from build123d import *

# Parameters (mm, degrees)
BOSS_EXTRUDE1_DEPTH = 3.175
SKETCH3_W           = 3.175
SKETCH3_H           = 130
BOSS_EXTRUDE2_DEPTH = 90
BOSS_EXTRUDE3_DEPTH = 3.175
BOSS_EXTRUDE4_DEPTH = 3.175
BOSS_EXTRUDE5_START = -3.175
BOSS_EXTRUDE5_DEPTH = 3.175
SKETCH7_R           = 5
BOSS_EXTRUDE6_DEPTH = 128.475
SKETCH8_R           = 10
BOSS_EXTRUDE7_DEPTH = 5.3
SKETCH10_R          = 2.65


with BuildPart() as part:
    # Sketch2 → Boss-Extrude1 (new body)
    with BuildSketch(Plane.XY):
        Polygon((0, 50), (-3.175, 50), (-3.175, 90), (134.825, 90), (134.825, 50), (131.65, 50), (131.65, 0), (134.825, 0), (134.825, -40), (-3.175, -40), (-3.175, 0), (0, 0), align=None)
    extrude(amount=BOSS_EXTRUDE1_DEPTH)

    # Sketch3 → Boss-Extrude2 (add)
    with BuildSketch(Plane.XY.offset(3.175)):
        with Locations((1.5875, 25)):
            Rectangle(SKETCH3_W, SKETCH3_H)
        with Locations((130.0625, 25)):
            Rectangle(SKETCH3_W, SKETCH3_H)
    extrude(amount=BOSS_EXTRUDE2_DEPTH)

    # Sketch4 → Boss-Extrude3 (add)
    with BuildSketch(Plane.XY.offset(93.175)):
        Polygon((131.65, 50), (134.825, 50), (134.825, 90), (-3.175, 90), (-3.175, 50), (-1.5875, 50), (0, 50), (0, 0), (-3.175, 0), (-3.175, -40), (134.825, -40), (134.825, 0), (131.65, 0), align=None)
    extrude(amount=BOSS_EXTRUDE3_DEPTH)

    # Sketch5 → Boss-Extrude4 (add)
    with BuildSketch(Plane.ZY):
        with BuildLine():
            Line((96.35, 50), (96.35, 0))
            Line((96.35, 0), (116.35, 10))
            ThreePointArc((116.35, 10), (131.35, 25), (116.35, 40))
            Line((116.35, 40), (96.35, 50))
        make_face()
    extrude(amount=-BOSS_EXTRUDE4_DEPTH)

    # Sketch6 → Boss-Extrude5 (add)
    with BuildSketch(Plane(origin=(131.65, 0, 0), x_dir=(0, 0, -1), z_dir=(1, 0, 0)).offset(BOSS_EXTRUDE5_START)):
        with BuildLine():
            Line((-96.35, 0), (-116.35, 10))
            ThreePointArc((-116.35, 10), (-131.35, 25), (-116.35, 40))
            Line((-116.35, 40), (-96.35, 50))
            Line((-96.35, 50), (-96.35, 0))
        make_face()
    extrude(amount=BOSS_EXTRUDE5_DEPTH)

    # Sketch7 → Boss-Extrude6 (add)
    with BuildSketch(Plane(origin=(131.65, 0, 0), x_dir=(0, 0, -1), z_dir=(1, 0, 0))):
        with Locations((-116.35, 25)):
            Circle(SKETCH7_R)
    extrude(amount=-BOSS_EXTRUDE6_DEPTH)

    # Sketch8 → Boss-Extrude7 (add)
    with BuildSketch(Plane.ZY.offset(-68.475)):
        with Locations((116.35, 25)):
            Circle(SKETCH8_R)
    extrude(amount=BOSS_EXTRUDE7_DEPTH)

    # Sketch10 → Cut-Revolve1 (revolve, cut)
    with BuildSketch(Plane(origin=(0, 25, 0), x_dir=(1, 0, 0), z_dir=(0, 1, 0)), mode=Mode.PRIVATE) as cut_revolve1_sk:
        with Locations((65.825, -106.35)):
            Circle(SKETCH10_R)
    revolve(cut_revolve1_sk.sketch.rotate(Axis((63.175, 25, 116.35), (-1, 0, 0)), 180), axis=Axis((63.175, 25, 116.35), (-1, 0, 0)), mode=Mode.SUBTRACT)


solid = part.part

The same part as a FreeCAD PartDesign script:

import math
import FreeCAD as App
import Part
import Sketcher
from FreeCAD import Vector

doc = App.newDocument("Part")
body = doc.addObject("PartDesign::Body", "Body")

sketch1 = doc.addObject("Sketcher::SketchObject", "Sketch")
body.addObject(sketch1)
sketch1.AttachmentSupport = (doc.XY_Plane, [""])
sketch1.MapMode = "FlatFace"
sketch1.addGeometry(Part.LineSegment(Vector(-3.2, 50, 0), Vector(0, 50, 0)), False)
sketch1.addGeometry(Part.LineSegment(Vector(0, 50, 0), Vector(0, 0, 0)), False)
sketch1.addGeometry(Part.LineSegment(Vector(0, 0, 0), Vector(-3.2, 0, 0)), False)
sketch1.addGeometry(Part.LineSegment(Vector(-3.2, 0, 0), Vector(-3.2, -40, 0)), False)
sketch1.addGeometry(Part.LineSegment(Vector(-3.2, -40, 0), Vector(134.8, -40, 0)), False)
sketch1.addGeometry(Part.LineSegment(Vector(134.8, -40, 0), Vector(134.8, 0, 0)), False)
sketch1.addGeometry(Part.LineSegment(Vector(134.8, 0, 0), Vector(131.7, 0, 0)), False)
sketch1.addGeometry(Part.LineSegment(Vector(131.7, 0, 0), Vector(131.7, 50, 0)), False)
sketch1.addGeometry(Part.LineSegment(Vector(131.7, 50, 0), Vector(134.8, 50, 0)), False)
sketch1.addGeometry(Part.LineSegment(Vector(134.8, 50, 0), Vector(134.8, 90, 0)), False)
sketch1.addGeometry(Part.LineSegment(Vector(134.8, 90, 0), Vector(-3.2, 90, 0)), False)
sketch1.addGeometry(Part.LineSegment(Vector(-3.2, 90, 0), Vector(-3.2, 50, 0)), False)
sketch1.addConstraint(Sketcher.Constraint("Coincident", 0, 2, 1, 1))
sketch1.addConstraint(Sketcher.Constraint("Coincident", 1, 2, 2, 1))
sketch1.addConstraint(Sketcher.Constraint("Coincident", 2, 2, 3, 1))
sketch1.addConstraint(Sketcher.Constraint("Coincident", 3, 2, 4, 1))
sketch1.addConstraint(Sketcher.Constraint("Coincident", 4, 2, 5, 1))
sketch1.addConstraint(Sketcher.Constraint("Coincident", 5, 2, 6, 1))
sketch1.addConstraint(Sketcher.Constraint("Coincident", 6, 2, 7, 1))
sketch1.addConstraint(Sketcher.Constraint("Coincident", 7, 2, 8, 1))
sketch1.addConstraint(Sketcher.Constraint("Coincident", 8, 2, 9, 1))
sketch1.addConstraint(Sketcher.Constraint("Coincident", 9, 2, 10, 1))
sketch1.addConstraint(Sketcher.Constraint("Coincident", 10, 2, 11, 1))
sketch1.addConstraint(Sketcher.Constraint("Coincident", 11, 2, 0, 1))
sketch1.addConstraint(Sketcher.Constraint("Horizontal", 0))
sketch1.addConstraint(Sketcher.Constraint("Vertical", 1))
sketch1.addConstraint(Sketcher.Constraint("Horizontal", 2))
sketch1.addConstraint(Sketcher.Constraint("Vertical", 3))
sketch1.addConstraint(Sketcher.Constraint("Horizontal", 4))
sketch1.addConstraint(Sketcher.Constraint("Vertical", 5))
sketch1.addConstraint(Sketcher.Constraint("Horizontal", 6))
sketch1.addConstraint(Sketcher.Constraint("Vertical", 7))
sketch1.addConstraint(Sketcher.Constraint("Horizontal", 8))
sketch1.addConstraint(Sketcher.Constraint("Vertical", 9))
sketch1.addConstraint(Sketcher.Constraint("Horizontal", 10))
sketch1.addConstraint(Sketcher.Constraint("Vertical", 11))
sketch1.addConstraint(Sketcher.Constraint("Coincident", 1, 2, -1, 1))
sketch1.addConstraint(Sketcher.Constraint("PointOnObject", 5, 2, -1))
sketch1.addConstraint(Sketcher.Constraint("Horizontal", 0, 2, 7, 2))
sketch1.addConstraint(Sketcher.Constraint("Vertical", 5, 2, 8, 2))
sketch1.addConstraint(Sketcher.Constraint("Vertical", 3, 2, 10, 2))
sketch1.addConstraint(Sketcher.Constraint("Equal", 2, 6))
sketch1.addConstraint(Sketcher.Constraint("Equal", 5, 9))
sketch1.addConstraint(Sketcher.Constraint("DistanceX", 4, 1, 4, 2, 138.0))
sketch1.addConstraint(Sketcher.Constraint("DistanceY", 1, 2, 1, 1, 50.0))
sketch1.addConstraint(Sketcher.Constraint("DistanceY", 3, 2, 3, 1, 40.0))
sketch1.addConstraint(Sketcher.Constraint("DistanceX", 0, 1, 0, 2, 3.175))
pad1 = doc.addObject("PartDesign::Pad", "Pad")
body.addObject(pad1)
pad1.Profile = sketch1
pad1.Length = 3.175

sketch2 = doc.addObject("Sketcher::SketchObject", "Sketch001")
body.addObject(sketch2)
sketch2.AttachmentSupport = (doc.XY_Plane, [""])
sketch2.MapMode = "FlatFace"
sketch2.AttachmentOffset = App.Placement(Vector(0, 0, 3.175), App.Rotation())
sketch2.addGeometry(Part.LineSegment(Vector(0, 90, 0), Vector(0, -40, 0)), False)
sketch2.addGeometry(Part.LineSegment(Vector(0, -40, 0), Vector(3.2, -40, 0)), False)
sketch2.addGeometry(Part.LineSegment(Vector(3.2, -40, 0), Vector(3.2, 90, 0)), False)
sketch2.addGeometry(Part.LineSegment(Vector(3.2, 90, 0), Vector(0, 90, 0)), False)
sketch2.addGeometry(Part.LineSegment(Vector(128.5, 90, 0), Vector(128.5, -40, 0)), False)
sketch2.addGeometry(Part.LineSegment(Vector(128.5, -40, 0), Vector(131.7, -40, 0)), False)
sketch2.addGeometry(Part.LineSegment(Vector(131.7, -40, 0), Vector(131.7, 90, 0)), False)
sketch2.addGeometry(Part.LineSegment(Vector(131.7, 90, 0), Vector(128.5, 90, 0)), False)
sketch2.addConstraint(Sketcher.Constraint("Coincident", 0, 2, 1, 1))
sketch2.addConstraint(Sketcher.Constraint("Coincident", 1, 2, 2, 1))
sketch2.addConstraint(Sketcher.Constraint("Coincident", 2, 2, 3, 1))
sketch2.addConstraint(Sketcher.Constraint("Coincident", 3, 2, 0, 1))
sketch2.addConstraint(Sketcher.Constraint("Coincident", 4, 2, 5, 1))
sketch2.addConstraint(Sketcher.Constraint("Coincident", 5, 2, 6, 1))
sketch2.addConstraint(Sketcher.Constraint("Coincident", 6, 2, 7, 1))
sketch2.addConstraint(Sketcher.Constraint("Coincident", 7, 2, 4, 1))
sketch2.addConstraint(Sketcher.Constraint("Vertical", 0))
sketch2.addConstraint(Sketcher.Constraint("Horizontal", 1))
sketch2.addConstraint(Sketcher.Constraint("Vertical", 2))
sketch2.addConstraint(Sketcher.Constraint("Horizontal", 3))
sketch2.addConstraint(Sketcher.Constraint("Vertical", 4))
sketch2.addConstraint(Sketcher.Constraint("Horizontal", 5))
sketch2.addConstraint(Sketcher.Constraint("Vertical", 6))
sketch2.addConstraint(Sketcher.Constraint("Horizontal", 7))
sketch2.addConstraint(Sketcher.Constraint("PointOnObject", 0, 2, -2))
sketch2.addConstraint(Sketcher.Constraint("Horizontal", 1, 2, 4, 2))
sketch2.addConstraint(Sketcher.Constraint("Horizontal", 3, 2, 6, 2))
sketch2.addConstraint(Sketcher.Constraint("Equal", 3, 5))
sketch2.addConstraint(Sketcher.Constraint("DistanceY", 0, 2, 0, 1, 130.0))
sketch2.addConstraint(Sketcher.Constraint("DistanceY", 0, 2, -1, 1, 40.0))
sketch2.addConstraint(Sketcher.Constraint("DistanceX", 1, 2, 4, 2, 125.3))
sketch2.addConstraint(Sketcher.Constraint("DistanceX", 1, 1, 1, 2, 3.175))
pad2 = doc.addObject("PartDesign::Pad", "Pad001")
body.addObject(pad2)
pad2.Profile = sketch2
pad2.Length = 90

sketch3 = doc.addObject("Sketcher::SketchObject", "Sketch002")
body.addObject(sketch3)
sketch3.AttachmentSupport = (doc.XY_Plane, [""])
sketch3.MapMode = "FlatFace"
sketch3.AttachmentOffset = App.Placement(Vector(0, 0, 93.175), App.Rotation())
sketch3.addGeometry(Part.LineSegment(Vector(131.7, 50, 0), Vector(134.8, 50, 0)), False)
sketch3.addGeometry(Part.LineSegment(Vector(134.8, 50, 0), Vector(134.8, 90, 0)), False)
sketch3.addGeometry(Part.LineSegment(Vector(134.8, 90, 0), Vector(-3.2, 90, 0)), False)
sketch3.addGeometry(Part.LineSegment(Vector(-3.2, 90, 0), Vector(-3.2, 50, 0)), False)
sketch3.addGeometry(Part.LineSegment(Vector(-3.2, 50, 0), Vector(0, 50, 0)), False)
sketch3.addGeometry(Part.LineSegment(Vector(0, 50, 0), Vector(0, 0, 0)), False)
sketch3.addGeometry(Part.LineSegment(Vector(0, 0, 0), Vector(-3.2, 0, 0)), False)
sketch3.addGeometry(Part.LineSegment(Vector(-3.2, 0, 0), Vector(-3.2, -40, 0)), False)
sketch3.addGeometry(Part.LineSegment(Vector(-3.2, -40, 0), Vector(134.8, -40, 0)), False)
sketch3.addGeometry(Part.LineSegment(Vector(134.8, -40, 0), Vector(134.8, 0, 0)), False)
sketch3.addGeometry(Part.LineSegment(Vector(134.8, 0, 0), Vector(131.7, 0, 0)), False)
sketch3.addGeometry(Part.LineSegment(Vector(131.7, 0, 0), Vector(131.7, 50, 0)), False)
sketch3.addConstraint(Sketcher.Constraint("Coincident", 0, 2, 1, 1))
sketch3.addConstraint(Sketcher.Constraint("Coincident", 1, 2, 2, 1))
sketch3.addConstraint(Sketcher.Constraint("Coincident", 2, 2, 3, 1))
sketch3.addConstraint(Sketcher.Constraint("Coincident", 3, 2, 4, 1))
sketch3.addConstraint(Sketcher.Constraint("Coincident", 4, 2, 5, 1))
sketch3.addConstraint(Sketcher.Constraint("Coincident", 5, 2, 6, 1))
sketch3.addConstraint(Sketcher.Constraint("Coincident", 6, 2, 7, 1))
sketch3.addConstraint(Sketcher.Constraint("Coincident", 7, 2, 8, 1))
sketch3.addConstraint(Sketcher.Constraint("Coincident", 8, 2, 9, 1))
sketch3.addConstraint(Sketcher.Constraint("Coincident", 9, 2, 10, 1))
sketch3.addConstraint(Sketcher.Constraint("Coincident", 10, 2, 11, 1))
sketch3.addConstraint(Sketcher.Constraint("Coincident", 11, 2, 0, 1))
sketch3.addConstraint(Sketcher.Constraint("Horizontal", 0))
sketch3.addConstraint(Sketcher.Constraint("Vertical", 1))
sketch3.addConstraint(Sketcher.Constraint("Horizontal", 2))
sketch3.addConstraint(Sketcher.Constraint("Vertical", 3))
sketch3.addConstraint(Sketcher.Constraint("Horizontal", 4))
sketch3.addConstraint(Sketcher.Constraint("Vertical", 5))
sketch3.addConstraint(Sketcher.Constraint("Horizontal", 6))
sketch3.addConstraint(Sketcher.Constraint("Vertical", 7))
sketch3.addConstraint(Sketcher.Constraint("Horizontal", 8))
sketch3.addConstraint(Sketcher.Constraint("Vertical", 9))
sketch3.addConstraint(Sketcher.Constraint("Horizontal", 10))
sketch3.addConstraint(Sketcher.Constraint("Vertical", 11))
sketch3.addConstraint(Sketcher.Constraint("Coincident", 5, 2, -1, 1))
sketch3.addConstraint(Sketcher.Constraint("PointOnObject", 9, 2, -1))
sketch3.addConstraint(Sketcher.Constraint("Horizontal", 0, 2, 3, 2))
sketch3.addConstraint(Sketcher.Constraint("Vertical", 3, 2, 6, 2))
sketch3.addConstraint(Sketcher.Constraint("Vertical", 1, 2, 8, 2))
sketch3.addConstraint(Sketcher.Constraint("Equal", 0, 4))
sketch3.addConstraint(Sketcher.Constraint("Equal", 3, 7))
sketch3.addConstraint(Sketcher.Constraint("DistanceX", 2, 2, 2, 1, 138.0))
sketch3.addConstraint(Sketcher.Constraint("DistanceY", 1, 1, 1, 2, 40.0))
sketch3.addConstraint(Sketcher.Constraint("DistanceY", 5, 2, 5, 1, 50.0))
sketch3.addConstraint(Sketcher.Constraint("DistanceX", 0, 1, 0, 2, 3.175))
pad3 = doc.addObject("PartDesign::Pad", "Pad002")
body.addObject(pad3)
pad3.Profile = sketch3
pad3.Length = 3.175

sketch4 = doc.addObject("Sketcher::SketchObject", "Sketch003")
body.addObject(sketch4)
sketch4.AttachmentSupport = (doc.YZ_Plane, [""])
sketch4.MapMode = "FlatFace"
sketch4.addGeometry(Part.LineSegment(Vector(50, 96, 0), Vector(0, 96, 0)), False)
sketch4.addGeometry(Part.LineSegment(Vector(0, 96, 0), Vector(10, 116, 0)), False)
sketch4.addGeometry(Part.ArcOfCircle(Part.Circle(Vector(25, 116, 0), Vector(0, 0, 1), 15), math.radians(0), math.radians(180)), False)
sketch4.addGeometry(Part.LineSegment(Vector(40, 116, 0), Vector(50, 96, 0)), False)
sketch4.addConstraint(Sketcher.Constraint("Coincident", 0, 2, 1, 1))
sketch4.addConstraint(Sketcher.Constraint("Coincident", 1, 2, 2, 2))
sketch4.addConstraint(Sketcher.Constraint("Coincident", 2, 1, 3, 1))
sketch4.addConstraint(Sketcher.Constraint("Coincident", 3, 2, 0, 1))
sketch4.addConstraint(Sketcher.Constraint("Horizontal", 0))
sketch4.addConstraint(Sketcher.Constraint("PointOnObject", 0, 2, -2))
sketch4.addConstraint(Sketcher.Constraint("Horizontal", 2, 3, 1, 2))
sketch4.addConstraint(Sketcher.Constraint("Horizontal", 1, 2, 2, 1))
sketch4.addConstraint(Sketcher.Constraint("Equal", 1, 3))
sketch4.addConstraint(Sketcher.Constraint("Radius", 2, 15.0))
sketch4.addConstraint(Sketcher.Constraint("DistanceX", 0, 2, 0, 1, 50.0))
sketch4.addConstraint(Sketcher.Constraint("DistanceY", 0, 2, 2, 3, 20.0))
sketch4.addConstraint(Sketcher.Constraint("DistanceY", -1, 1, 2, 3, 116.35))
pad4 = doc.addObject("PartDesign::Pad", "Pad003")
body.addObject(pad4)
pad4.Profile = sketch4
pad4.Length = 3.175

sketch5 = doc.addObject("Sketcher::SketchObject", "Sketch004")
body.addObject(sketch5)
sketch5.AttachmentSupport = (doc.YZ_Plane, [""])
sketch5.MapMode = "FlatFace"
sketch5.AttachmentOffset = App.Placement(Vector(0, 0, 128.475), App.Rotation())
sketch5.addGeometry(Part.LineSegment(Vector(10, 116, 0), Vector(0, 96, 0)), False)
sketch5.addGeometry(Part.LineSegment(Vector(0, 96, 0), Vector(50, 96, 0)), False)
sketch5.addGeometry(Part.LineSegment(Vector(50, 96, 0), Vector(40, 116, 0)), False)
sketch5.addGeometry(Part.ArcOfCircle(Part.Circle(Vector(25, 116, 0), Vector(0, 0, 1), 15), math.radians(0), math.radians(180)), False)
sketch5.addConstraint(Sketcher.Constraint("Coincident", 0, 2, 1, 1))
sketch5.addConstraint(Sketcher.Constraint("Coincident", 1, 2, 2, 1))
sketch5.addConstraint(Sketcher.Constraint("Coincident", 2, 2, 3, 1))
sketch5.addConstraint(Sketcher.Constraint("Coincident", 3, 2, 0, 1))
sketch5.addConstraint(Sketcher.Constraint("Horizontal", 1))
sketch5.addConstraint(Sketcher.Constraint("PointOnObject", 0, 2, -2))
sketch5.addConstraint(Sketcher.Constraint("Horizontal", 3, 3, 2, 2))
sketch5.addConstraint(Sketcher.Constraint("Horizontal", 2, 2, 3, 2))
sketch5.addConstraint(Sketcher.Constraint("Equal", 0, 2))
sketch5.addConstraint(Sketcher.Constraint("Radius", 3, 15.0))
sketch5.addConstraint(Sketcher.Constraint("DistanceX", 1, 1, 1, 2, 50.0))
sketch5.addConstraint(Sketcher.Constraint("DistanceY", 0, 2, 3, 3, 20.0))
sketch5.addConstraint(Sketcher.Constraint("DistanceY", -1, 1, 3, 3, 116.35))
pad5 = doc.addObject("PartDesign::Pad", "Pad004")
body.addObject(pad5)
pad5.Profile = sketch5
pad5.Length = 3.175

sketch6 = doc.addObject("Sketcher::SketchObject", "Sketch005")
body.addObject(sketch6)
sketch6.AttachmentSupport = (doc.YZ_Plane, [""])
sketch6.MapMode = "FlatFace"
sketch6.AttachmentOffset = App.Placement(Vector(0, 0, 131.65), App.Rotation())
sketch6.addGeometry(Part.Circle(Vector(25, 116, 0), Vector(0, 0, 1), 5), False)
sketch6.addConstraint(Sketcher.Constraint("Diameter", 0, 10.0))
sketch6.addConstraint(Sketcher.Constraint("DistanceX", -1, 1, 0, 3, 25.0))
sketch6.addConstraint(Sketcher.Constraint("DistanceY", -1, 1, 0, 3, 116.35))
pad6 = doc.addObject("PartDesign::Pad", "Pad005")
body.addObject(pad6)
pad6.Profile = sketch6
pad6.Length = 128.475
pad6.Reversed = True

sketch7 = doc.addObject("Sketcher::SketchObject", "Sketch006")
body.addObject(sketch7)
sketch7.AttachmentSupport = (doc.YZ_Plane, [""])
sketch7.MapMode = "FlatFace"
sketch7.AttachmentOffset = App.Placement(Vector(0, 0, 68.475), App.Rotation())
sketch7.addGeometry(Part.Circle(Vector(25, 116, 0), Vector(0, 0, 1), 10), False)
sketch7.addConstraint(Sketcher.Constraint("Diameter", 0, 20.0))
sketch7.addConstraint(Sketcher.Constraint("DistanceX", -1, 1, 0, 3, 25.0))
sketch7.addConstraint(Sketcher.Constraint("DistanceY", -1, 1, 0, 3, 116.35))
pad7 = doc.addObject("PartDesign::Pad", "Pad006")
body.addObject(pad7)
pad7.Profile = sketch7
pad7.Length = 5.3
pad7.Reversed = True

sketch8 = doc.addObject("Sketcher::SketchObject", "Sketch007")
body.addObject(sketch8)
sketch8.AttachmentSupport = (doc.XZ_Plane, [""])
sketch8.MapMode = "FlatFace"
sketch8.AttachmentOffset = App.Placement(Vector(0, 0, -25), App.Rotation())
sketch8.addGeometry(Part.Circle(Vector(65.8, 106.3, 0), Vector(0, 0, 1), 2.6), False)
sketch8.addGeometry(Part.LineSegment(Vector(65.8, 116.3, 0), Vector(55.8, 116.3, 0)), True)
sketch8.addConstraint(Sketcher.Constraint("Horizontal", 1))
sketch8.addConstraint(Sketcher.Constraint("Vertical", 0, 3, 1, 1))
sketch8.addConstraint(Sketcher.Constraint("Diameter", 0, 5.3))
sketch8.addConstraint(Sketcher.Constraint("DistanceX", 1, 2, 1, 1, 10.0))
sketch8.addConstraint(Sketcher.Constraint("DistanceY", 0, 3, 1, 1, 10.0))
sketch8.addConstraint(Sketcher.Constraint("DistanceY", -1, 1, 0, 3, 106.35))
sketch8.addConstraint(Sketcher.Constraint("DistanceX", -1, 1, 0, 3, 65.825))
groove = doc.addObject("PartDesign::Groove", "Groove")
body.addObject(groove)
groove.Profile = sketch8
groove.ReferenceAxis = (sketch8, ["Axis0"])
groove.Angle = 360

doc.recompute()
